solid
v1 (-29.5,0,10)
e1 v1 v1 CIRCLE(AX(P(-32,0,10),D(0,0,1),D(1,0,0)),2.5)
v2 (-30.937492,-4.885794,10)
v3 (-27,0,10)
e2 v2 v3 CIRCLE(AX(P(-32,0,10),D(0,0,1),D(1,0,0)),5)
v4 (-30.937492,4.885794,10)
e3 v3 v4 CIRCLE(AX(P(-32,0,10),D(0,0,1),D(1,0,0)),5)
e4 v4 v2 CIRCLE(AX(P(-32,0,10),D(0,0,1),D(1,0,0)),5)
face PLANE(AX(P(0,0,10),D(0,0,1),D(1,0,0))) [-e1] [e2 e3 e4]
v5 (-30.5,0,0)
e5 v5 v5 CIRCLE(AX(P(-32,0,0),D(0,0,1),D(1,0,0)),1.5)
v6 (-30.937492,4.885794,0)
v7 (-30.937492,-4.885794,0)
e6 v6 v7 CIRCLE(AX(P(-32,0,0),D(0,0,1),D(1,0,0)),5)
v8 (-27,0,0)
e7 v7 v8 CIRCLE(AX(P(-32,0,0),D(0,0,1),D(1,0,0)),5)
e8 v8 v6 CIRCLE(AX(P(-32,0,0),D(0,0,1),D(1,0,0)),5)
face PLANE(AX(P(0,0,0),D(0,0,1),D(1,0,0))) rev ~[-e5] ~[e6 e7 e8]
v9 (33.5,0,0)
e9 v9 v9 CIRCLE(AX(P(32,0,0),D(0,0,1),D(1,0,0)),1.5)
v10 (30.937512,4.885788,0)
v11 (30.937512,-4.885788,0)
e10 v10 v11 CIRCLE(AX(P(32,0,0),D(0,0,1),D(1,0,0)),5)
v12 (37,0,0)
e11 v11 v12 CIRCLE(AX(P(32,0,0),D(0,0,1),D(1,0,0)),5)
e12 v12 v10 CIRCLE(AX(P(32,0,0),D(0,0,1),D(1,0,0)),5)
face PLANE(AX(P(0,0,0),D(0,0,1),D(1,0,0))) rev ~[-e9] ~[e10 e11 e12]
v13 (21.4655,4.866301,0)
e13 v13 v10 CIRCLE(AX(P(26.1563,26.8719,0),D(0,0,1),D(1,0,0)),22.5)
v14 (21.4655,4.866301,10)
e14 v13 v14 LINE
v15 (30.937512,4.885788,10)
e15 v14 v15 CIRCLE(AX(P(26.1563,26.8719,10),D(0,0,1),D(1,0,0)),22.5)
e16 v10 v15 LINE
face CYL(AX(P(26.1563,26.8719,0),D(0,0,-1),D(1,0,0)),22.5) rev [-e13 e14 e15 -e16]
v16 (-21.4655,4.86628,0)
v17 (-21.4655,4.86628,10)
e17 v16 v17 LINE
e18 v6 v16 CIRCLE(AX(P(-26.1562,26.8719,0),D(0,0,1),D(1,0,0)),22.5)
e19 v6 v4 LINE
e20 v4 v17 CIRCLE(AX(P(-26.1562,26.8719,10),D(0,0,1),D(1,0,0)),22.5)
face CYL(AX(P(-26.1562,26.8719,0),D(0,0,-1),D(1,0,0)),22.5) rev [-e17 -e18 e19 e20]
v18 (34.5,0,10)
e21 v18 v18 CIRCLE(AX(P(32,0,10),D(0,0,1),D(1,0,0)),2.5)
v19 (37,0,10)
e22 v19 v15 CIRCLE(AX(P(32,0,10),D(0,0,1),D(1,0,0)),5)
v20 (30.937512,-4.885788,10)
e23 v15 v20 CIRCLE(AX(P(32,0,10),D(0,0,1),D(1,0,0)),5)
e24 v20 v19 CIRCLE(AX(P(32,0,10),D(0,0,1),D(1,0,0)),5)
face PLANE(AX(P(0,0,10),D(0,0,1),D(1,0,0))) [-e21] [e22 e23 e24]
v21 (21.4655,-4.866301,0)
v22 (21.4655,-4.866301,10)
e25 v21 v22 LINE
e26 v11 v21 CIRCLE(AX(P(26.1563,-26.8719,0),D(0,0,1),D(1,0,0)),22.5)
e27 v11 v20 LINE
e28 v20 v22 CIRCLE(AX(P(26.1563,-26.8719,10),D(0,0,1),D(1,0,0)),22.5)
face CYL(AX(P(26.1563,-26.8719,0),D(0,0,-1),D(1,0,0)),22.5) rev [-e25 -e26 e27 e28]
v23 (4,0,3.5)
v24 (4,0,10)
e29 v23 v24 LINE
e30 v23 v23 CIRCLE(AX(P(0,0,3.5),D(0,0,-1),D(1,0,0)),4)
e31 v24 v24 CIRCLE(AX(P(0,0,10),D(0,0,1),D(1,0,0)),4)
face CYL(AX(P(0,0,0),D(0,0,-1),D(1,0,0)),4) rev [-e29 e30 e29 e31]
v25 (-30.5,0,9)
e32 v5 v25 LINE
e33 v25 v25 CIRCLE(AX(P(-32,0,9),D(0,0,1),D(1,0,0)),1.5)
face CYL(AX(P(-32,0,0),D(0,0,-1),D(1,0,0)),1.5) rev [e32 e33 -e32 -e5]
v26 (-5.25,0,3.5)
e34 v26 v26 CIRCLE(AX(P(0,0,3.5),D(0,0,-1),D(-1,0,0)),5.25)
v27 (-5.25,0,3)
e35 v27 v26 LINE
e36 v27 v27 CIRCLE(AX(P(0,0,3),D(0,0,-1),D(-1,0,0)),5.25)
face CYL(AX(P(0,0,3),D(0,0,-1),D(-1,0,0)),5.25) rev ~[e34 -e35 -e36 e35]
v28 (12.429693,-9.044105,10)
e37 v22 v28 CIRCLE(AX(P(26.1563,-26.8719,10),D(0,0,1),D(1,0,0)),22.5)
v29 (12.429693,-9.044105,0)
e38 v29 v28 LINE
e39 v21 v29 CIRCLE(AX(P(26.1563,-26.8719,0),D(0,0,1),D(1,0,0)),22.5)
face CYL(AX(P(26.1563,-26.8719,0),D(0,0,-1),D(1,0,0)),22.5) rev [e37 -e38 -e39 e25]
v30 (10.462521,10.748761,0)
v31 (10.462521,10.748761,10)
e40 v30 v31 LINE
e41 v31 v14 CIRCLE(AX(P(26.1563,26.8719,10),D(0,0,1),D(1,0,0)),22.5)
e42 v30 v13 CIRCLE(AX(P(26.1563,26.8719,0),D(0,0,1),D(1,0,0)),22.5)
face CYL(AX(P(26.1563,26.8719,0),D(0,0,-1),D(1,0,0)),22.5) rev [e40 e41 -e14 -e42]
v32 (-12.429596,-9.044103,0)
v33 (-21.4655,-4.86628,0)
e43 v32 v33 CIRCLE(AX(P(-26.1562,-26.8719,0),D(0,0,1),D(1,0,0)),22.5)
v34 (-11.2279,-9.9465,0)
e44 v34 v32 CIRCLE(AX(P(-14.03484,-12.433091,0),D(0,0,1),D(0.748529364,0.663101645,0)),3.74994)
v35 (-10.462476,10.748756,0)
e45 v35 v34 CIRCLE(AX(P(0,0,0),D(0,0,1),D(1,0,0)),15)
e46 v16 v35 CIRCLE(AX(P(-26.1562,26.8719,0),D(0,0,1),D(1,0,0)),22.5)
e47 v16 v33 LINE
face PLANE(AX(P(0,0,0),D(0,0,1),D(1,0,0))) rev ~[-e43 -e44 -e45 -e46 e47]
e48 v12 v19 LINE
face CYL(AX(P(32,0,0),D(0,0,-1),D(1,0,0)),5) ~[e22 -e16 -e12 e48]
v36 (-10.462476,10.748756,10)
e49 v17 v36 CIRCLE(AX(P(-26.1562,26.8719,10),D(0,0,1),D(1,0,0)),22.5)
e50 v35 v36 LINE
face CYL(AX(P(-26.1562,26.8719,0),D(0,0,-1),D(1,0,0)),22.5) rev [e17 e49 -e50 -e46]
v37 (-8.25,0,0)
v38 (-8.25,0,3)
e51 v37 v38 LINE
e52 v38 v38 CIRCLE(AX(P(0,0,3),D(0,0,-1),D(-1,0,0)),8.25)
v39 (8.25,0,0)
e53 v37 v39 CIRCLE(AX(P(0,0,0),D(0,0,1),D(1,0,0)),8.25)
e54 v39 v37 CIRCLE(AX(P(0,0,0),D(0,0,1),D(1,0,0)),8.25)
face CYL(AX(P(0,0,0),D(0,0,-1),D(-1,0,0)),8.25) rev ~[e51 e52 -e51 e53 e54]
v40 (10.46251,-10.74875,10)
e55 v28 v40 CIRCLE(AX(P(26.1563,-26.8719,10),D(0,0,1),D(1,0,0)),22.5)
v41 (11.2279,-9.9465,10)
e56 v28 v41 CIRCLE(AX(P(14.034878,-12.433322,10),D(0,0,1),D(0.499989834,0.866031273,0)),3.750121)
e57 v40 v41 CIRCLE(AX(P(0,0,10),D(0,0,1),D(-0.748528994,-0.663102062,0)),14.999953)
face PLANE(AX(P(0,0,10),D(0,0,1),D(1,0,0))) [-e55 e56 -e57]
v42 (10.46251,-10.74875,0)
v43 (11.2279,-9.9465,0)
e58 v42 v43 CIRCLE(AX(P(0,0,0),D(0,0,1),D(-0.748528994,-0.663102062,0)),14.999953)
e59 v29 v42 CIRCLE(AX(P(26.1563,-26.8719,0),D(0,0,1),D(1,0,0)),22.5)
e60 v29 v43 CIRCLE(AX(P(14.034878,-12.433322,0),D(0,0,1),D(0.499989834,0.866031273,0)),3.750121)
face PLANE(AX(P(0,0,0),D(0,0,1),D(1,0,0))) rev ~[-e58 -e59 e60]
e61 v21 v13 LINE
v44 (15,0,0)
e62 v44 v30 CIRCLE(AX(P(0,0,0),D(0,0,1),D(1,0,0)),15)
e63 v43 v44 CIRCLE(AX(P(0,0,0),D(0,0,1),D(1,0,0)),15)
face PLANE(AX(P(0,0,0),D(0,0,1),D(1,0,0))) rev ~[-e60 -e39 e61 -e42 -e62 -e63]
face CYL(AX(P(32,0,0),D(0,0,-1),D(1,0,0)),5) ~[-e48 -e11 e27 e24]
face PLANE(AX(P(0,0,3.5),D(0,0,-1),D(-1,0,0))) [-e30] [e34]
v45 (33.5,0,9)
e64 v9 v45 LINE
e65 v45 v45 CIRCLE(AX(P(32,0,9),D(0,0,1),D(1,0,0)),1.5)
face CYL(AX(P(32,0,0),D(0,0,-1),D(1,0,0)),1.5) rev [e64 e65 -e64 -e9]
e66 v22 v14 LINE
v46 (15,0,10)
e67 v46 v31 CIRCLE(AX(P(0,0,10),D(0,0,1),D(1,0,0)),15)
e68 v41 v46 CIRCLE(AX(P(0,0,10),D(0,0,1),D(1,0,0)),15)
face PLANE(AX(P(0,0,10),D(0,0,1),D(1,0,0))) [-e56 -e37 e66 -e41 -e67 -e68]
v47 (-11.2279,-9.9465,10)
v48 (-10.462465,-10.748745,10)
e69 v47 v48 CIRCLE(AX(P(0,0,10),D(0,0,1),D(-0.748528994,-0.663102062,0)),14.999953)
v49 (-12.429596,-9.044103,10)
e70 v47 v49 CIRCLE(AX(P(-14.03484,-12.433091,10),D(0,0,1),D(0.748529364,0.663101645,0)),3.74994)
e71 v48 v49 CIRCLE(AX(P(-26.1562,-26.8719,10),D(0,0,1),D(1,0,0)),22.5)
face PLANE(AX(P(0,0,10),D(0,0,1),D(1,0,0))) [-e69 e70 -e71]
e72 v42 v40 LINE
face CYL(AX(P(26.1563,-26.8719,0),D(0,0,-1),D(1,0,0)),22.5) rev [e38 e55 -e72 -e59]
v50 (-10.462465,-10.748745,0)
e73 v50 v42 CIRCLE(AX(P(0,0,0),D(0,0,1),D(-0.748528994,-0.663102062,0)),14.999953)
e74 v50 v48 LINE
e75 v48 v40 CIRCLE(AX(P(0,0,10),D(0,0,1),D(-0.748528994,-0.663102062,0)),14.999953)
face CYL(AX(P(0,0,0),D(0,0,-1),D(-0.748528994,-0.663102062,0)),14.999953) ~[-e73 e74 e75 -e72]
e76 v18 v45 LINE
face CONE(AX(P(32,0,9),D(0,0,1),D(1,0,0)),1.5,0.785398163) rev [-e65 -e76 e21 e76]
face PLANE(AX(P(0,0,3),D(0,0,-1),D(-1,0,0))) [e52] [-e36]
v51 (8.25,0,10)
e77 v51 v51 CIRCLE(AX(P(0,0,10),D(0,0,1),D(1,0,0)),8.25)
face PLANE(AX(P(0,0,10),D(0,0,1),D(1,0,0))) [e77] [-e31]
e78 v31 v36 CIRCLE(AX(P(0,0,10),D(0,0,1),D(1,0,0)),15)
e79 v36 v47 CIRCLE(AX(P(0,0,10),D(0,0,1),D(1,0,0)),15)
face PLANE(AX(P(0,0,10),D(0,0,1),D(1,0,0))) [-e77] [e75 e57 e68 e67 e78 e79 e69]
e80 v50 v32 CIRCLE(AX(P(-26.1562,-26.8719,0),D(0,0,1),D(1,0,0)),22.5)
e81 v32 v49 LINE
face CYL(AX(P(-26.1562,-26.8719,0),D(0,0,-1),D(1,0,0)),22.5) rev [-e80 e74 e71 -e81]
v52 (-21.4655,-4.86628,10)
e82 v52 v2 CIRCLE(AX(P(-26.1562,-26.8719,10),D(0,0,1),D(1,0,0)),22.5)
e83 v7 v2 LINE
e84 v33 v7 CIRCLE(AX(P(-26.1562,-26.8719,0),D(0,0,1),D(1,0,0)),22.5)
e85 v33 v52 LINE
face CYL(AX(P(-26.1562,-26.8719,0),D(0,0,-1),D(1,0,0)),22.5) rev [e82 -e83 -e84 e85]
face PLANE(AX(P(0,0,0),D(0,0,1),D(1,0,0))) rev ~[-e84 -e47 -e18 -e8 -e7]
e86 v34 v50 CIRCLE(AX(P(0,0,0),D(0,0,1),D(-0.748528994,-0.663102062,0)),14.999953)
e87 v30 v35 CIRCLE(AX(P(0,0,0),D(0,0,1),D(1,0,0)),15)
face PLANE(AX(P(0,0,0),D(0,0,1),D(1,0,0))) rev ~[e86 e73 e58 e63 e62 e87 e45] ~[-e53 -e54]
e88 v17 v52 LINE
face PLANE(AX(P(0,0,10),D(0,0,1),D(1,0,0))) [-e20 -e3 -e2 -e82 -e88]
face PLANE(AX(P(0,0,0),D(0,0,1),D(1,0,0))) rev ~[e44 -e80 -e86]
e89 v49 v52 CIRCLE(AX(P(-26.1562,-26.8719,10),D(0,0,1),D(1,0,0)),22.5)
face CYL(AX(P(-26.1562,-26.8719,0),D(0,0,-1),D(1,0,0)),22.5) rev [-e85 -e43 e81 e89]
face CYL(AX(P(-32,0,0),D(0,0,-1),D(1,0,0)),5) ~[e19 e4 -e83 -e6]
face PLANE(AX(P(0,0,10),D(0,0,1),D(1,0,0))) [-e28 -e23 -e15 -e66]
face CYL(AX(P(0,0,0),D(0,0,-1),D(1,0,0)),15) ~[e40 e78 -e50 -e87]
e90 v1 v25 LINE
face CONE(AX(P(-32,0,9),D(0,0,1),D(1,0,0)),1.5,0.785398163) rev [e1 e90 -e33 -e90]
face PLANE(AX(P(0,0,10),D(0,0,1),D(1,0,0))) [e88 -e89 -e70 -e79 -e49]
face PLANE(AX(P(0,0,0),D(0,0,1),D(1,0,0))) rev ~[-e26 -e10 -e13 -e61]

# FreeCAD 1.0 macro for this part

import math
import FreeCAD as App
import Part
import Sketcher

V = App.Vector
Q = App.Units.Quantity


def edges_at(feature, points):
    """Names of the edges that pass closest to the given points."""
    edges = feature.Shape.Edges
    near = lambda p: min(range(len(edges)), key=lambda i: edges[i].distToShape(Part.Vertex(*p))[0])
    return sorted({f"Edge{near(p) + 1}" for p in points})

doc = App.newDocument("Part")
body = doc.addObject("PartDesign::Body", "Body")

sketch1 = body.newObject("Sketcher::SketchObject", "Sketch")
sketch1.AttachmentSupport = (doc.getObject("XY_Plane"), [""])
sketch1.MapMode = "FlatFace"
sketch1.addGeometry(Part.ArcOfCircle(Part.Circle(V(0, 0, 0), V(0, 0, 1), 15), math.radians(-134), math.radians(-46)), False)
sketch1.addGeometry(Part.ArcOfCircle(Part.Circle(V(26.2, -26.9, 0), V(0, 0, 1), 22.5), math.radians(78), math.radians(134)), False)
sketch1.addGeometry(Part.ArcOfCircle(Part.Circle(V(32, 0, 0), V(0, 0, 1), 5), math.radians(-102), math.radians(102)), False)
sketch1.addGeometry(Part.ArcOfCircle(Part.Circle(V(26.2, 26.9, 0), V(0, 0, 1), 22.5), math.radians(-134), math.radians(-78)), False)
sketch1.addGeometry(Part.ArcOfCircle(Part.Circle(V(0, 0, 0), V(0, 0, 1), 15), math.radians(46), math.radians(134)), False)
sketch1.addGeometry(Part.ArcOfCircle(Part.Circle(V(-26.2, 26.9, 0), V(0, 0, 1), 22.5), math.radians(-102), math.radians(-46)), False)
sketch1.addGeometry(Part.ArcOfCircle(Part.Circle(V(-32, 0, 0), V(0, 0, 1), 5), math.radians(78), math.radians(282)), False)
sketch1.addGeometry(Part.ArcOfCircle(Part.Circle(V(-26.2, -26.9, 0), V(0, 0, 1), 22.5), math.radians(46), math.radians(102)), False)
sketch1.addGeometry(Part.Circle(V(0, 0, 0), V(0, 0, 1), 4), False)
sketch1.addGeometry(Part.Circle(V(-32, 0, 0), V(0, 0, 1), 1.5), False)
sketch1.addGeometry(Part.Circle(V(32, 0, 0), V(0, 0, 1), 1.5), False)
sketch1.addConstraint(Sketcher.Constraint("Tangent", 0, 2, 1, 2))
sketch1.addConstraint(Sketcher.Constraint("Tangent", 1, 1, 2, 1))
sketch1.addConstraint(Sketcher.Constraint("Tangent", 2, 2, 3, 2))
sketch1.addConstraint(Sketcher.Constraint("Tangent", 3, 1, 4, 1))
sketch1.addConstraint(Sketcher.Constraint("Tangent", 4, 2, 5, 2))
sketch1.addConstraint(Sketcher.Constraint("Tangent", 5, 1, 6, 1))
sketch1.addConstraint(Sketcher.Constraint("Tangent", 6, 2, 7, 2))
sketch1.addConstraint(Sketcher.Constraint("Tangent", 7, 1, 0, 1))
sketch1.addConstraint(Sketcher.Constraint("Coincident", 0, 3, -1, 1))
sketch1.addConstraint(Sketcher.Constraint("Coincident", 4, 3, -1, 1))
sketch1.addConstraint(Sketcher.Constraint("Coincident", 8, 3, -1, 1))
sketch1.addConstraint(Sketcher.Constraint("Coincident", 9, 3, 6, 3))
sketch1.addConstraint(Sketcher.Constraint("Coincident", 10, 3, 2, 3))
sketch1.addConstraint(Sketcher.Constraint("Equal", 1, 3))
sketch1.addConstraint(Sketcher.Constraint("Equal", 0, 4))
sketch1.addConstraint(Sketcher.Constraint("Equal", 3, 5))
sketch1.addConstraint(Sketcher.Constraint("Equal", 2, 6))
sketch1.addConstraint(Sketcher.Constraint("Equal", 5, 7))
sketch1.addConstraint(Sketcher.Constraint("Equal", 9, 10))
sketch1.addConstraint(Sketcher.Constraint("Symmetric", 2, 3, 6, 3, -1, 1))
sketch1.addConstraint(Sketcher.Constraint("PointOnObject", 2, 3, -1))
sketch1.addConstraint(Sketcher.Constraint("Diameter", 9, Q("3 mm")))
sketch1.addConstraint(Sketcher.Constraint("Radius", 0, Q("15 mm")))
sketch1.addConstraint(Sketcher.Constraint("Radius", 2, Q("5 mm")))
sketch1.addConstraint(Sketcher.Constraint("Radius", 1, Q("22.5 mm")))
sketch1.addConstraint(Sketcher.Constraint("Diameter", 8, Q("8 mm")))
sketch1.addConstraint(Sketcher.Constraint("DistanceX", -1, 1, 2, 3, Q("32 mm")))
pad1 = body.newObject("PartDesign::Pad", "Pad")
pad1.Profile = sketch1
pad1.Length = 10

sketch2 = body.newObject("Sketcher::SketchObject", "Sketch001")
sketch2.AttachmentSupport = (doc.getObject("XY_Plane"), [""])
sketch2.MapMode = "FlatFace"
sketch2.addGeometry(Part.Circle(V(0, 0, 0), V(0, 0, 1), 8), False)
sketch2.addConstraint(Sketcher.Constraint("Coincident", 0, 3, -1, 1))
sketch2.addConstraint(Sketcher.Constraint("Diameter", 0, Q("16.5 mm")))
pocket1 = body.newObject("PartDesign::Pocket", "Pocket")
pocket1.Profile = sketch2
pocket1.Length = 3
pocket1.Reversed = True

sketch3 = body.newObject("Sketcher::SketchObject", "Sketch002")
sketch3.AttachmentSupport = (doc.getObject("XY_Plane"), [""])
sketch3.MapMode = "FlatFace"
sketch3.AttachmentOffset = App.Placement(V(0, 0, 3), App.Rotation())
sketch3.addGeometry(Part.Circle(V(0, 0, 0), V(0, 0, 1), 5), False)
sketch3.addConstraint(Sketcher.Constraint("Coincident", 0, 3, -1, 1))
sketch3.addConstraint(Sketcher.Constraint("Diameter", 0, Q("10.5 mm")))
pocket2 = body.newObject("PartDesign::Pocket", "Pocket001")
pocket2.Profile = sketch3
pocket2.Length = 0.5
pocket2.Reversed = True
doc.recompute()

chamfer = body.newObject("PartDesign::Chamfer", "Chamfer")
chamfer.Base = (pocket2, edges_at(pocket2, [(30.5, 0, 10), (-33.5, 0, 10)]))
chamfer.Size = 1

doc.recompute()
